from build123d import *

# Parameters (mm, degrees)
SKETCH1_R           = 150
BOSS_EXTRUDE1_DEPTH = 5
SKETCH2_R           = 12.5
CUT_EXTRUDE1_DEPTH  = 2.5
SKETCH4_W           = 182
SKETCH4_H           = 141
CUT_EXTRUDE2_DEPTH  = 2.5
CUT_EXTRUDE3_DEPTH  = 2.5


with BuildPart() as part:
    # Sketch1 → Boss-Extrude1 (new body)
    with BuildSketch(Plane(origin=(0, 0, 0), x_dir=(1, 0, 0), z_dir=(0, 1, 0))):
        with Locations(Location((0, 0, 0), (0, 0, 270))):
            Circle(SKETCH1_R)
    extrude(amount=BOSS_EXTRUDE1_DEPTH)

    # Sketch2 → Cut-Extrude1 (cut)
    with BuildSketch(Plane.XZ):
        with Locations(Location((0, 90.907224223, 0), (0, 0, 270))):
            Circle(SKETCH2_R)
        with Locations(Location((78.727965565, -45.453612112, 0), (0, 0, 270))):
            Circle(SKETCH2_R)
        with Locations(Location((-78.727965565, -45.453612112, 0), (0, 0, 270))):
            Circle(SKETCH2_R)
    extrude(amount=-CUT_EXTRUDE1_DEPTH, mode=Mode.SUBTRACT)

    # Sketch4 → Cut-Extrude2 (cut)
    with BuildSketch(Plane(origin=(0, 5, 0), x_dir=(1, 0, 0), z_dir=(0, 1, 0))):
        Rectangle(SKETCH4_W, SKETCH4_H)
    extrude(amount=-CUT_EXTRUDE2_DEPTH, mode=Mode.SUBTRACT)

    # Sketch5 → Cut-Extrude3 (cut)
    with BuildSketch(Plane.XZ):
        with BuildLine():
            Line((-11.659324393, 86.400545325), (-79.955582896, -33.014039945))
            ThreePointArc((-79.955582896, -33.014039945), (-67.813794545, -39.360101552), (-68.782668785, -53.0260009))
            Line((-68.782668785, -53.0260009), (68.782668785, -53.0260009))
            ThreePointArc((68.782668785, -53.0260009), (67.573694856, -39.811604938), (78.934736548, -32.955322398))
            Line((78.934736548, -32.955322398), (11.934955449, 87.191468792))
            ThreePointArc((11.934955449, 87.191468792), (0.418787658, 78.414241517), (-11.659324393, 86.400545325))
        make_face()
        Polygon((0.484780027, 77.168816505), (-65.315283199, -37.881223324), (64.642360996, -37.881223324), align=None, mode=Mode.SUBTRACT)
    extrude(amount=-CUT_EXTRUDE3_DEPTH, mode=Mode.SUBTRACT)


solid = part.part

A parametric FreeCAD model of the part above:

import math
import FreeCAD as App
import Part
import Sketcher
from FreeCAD import Vector

doc = App.newDocument("Part")
params = doc.addObject("Spreadsheet::Sheet", "Params")
for row, (alias, value) in enumerate([
    ("sketch1_diameter", "300 mm"),
    ("pad1_length", "5 mm"),
    ("sketch2_diameter", "25 mm"),
    ("pocket1_length", "2.5 mm"),
    ("sketch3_width", "182 mm"),
    ("sketch3_height", "141 mm"),
    ("pocket2_length", "2.5 mm"),
    ("sketch4_radius", "12.5 mm"),
    ("pocket3_length", "2.5 mm"),
], start=1):
    params.set(f"A{row}", alias)
    params.set(f"B{row}", "=" + value)
    params.setAlias(f"B{row}", alias)

body = doc.addObject("PartDesign::Body", "Body")

# Sketch on XZ plane
sketch1 = body.newObject("Sketcher::SketchObject", "Sketch")
sketch1.AttachmentSupport = (doc.getObject("XZ_Plane"), [""])
sketch1.MapMode = "FlatFace"
sketch1.addGeometry(Part.Circle(Vector(0, 0, 0), Vector(0, 0, 1), 150), False)
sketch1.addConstraint(Sketcher.Constraint("Coincident", 0, 3, -1, 1))
sketch1.addConstraint(Sketcher.Constraint("Diameter", 0, 300.0))
sketch1.setExpression("Constraints[1]", "Params.sketch1_diameter")
pad1 = body.newObject("PartDesign::Pad", "Pad")
pad1.Profile = sketch1
pad1.setExpression("Length", "Params.pad1_length")
pad1.Reversed = True

# Sketch on XZ plane
sketch2 = body.newObject("Sketcher::SketchObject", "Sketch001")
sketch2.AttachmentSupport = (doc.getObject("XZ_Plane"), [""])
sketch2.MapMode = "FlatFace"
sketch2.addGeometry(Part.Circle(Vector(0, 91, 0), Vector(0, 0, 1), 12), False)
sketch2.addGeometry(Part.Circle(Vector(79, -45, 0), Vector(0, 0, 1), 12), False)
sketch2.addGeometry(Part.Circle(Vector(-79, -45, 0), Vector(0, 0, 1), 12), False)
sketch2.addConstraint(Sketcher.Constraint("Equal", 0, 1))
sketch2.addConstraint(Sketcher.Constraint("Equal", 1, 2))
sketch2.addConstraint(Sketcher.Constraint("Symmetric", 1, 3, 2, 3, -2))
sketch2.addConstraint(Sketcher.Constraint("PointOnObject", 0, 3, -2))
sketch2.addConstraint(Sketcher.Constraint("Diameter", 0, 25.0))
sketch2.addConstraint(Sketcher.Constraint("DistanceX", 2, 3, 1, 3, 157.455931))
sketch2.addConstraint(Sketcher.Constraint("DistanceY", -1, 1, 0, 3, 90.907224))
sketch2.addConstraint(Sketcher.Constraint("DistanceY", 1, 3, -1, 1, 45.453612))
sketch2.setExpression("Constraints[4]", "Params.sketch2_diameter")
pocket1 = body.newObject("PartDesign::Pocket", "Pocket")
pocket1.Profile = sketch2
pocket1.setExpression("Length", "Params.pocket1_length")

# Sketch on XZ plane
sketch3 = body.newObject("Sketcher::SketchObject", "Sketch002")
sketch3.AttachmentSupport = (doc.getObject("XZ_Plane"), [""])
sketch3.MapMode = "FlatFace"
sketch3.AttachmentOffset = App.Placement(Vector(0, 0, -5), App.Rotation())
sketch3.addGeometry(Part.LineSegment(Vector(-91, -70, 0), Vector(-91, 70, 0)), False)
sketch3.addGeometry(Part.LineSegment(Vector(-91, 70, 0), Vector(91, 70, 0)), False)
sketch3.addGeometry(Part.LineSegment(Vector(91, 70, 0), Vector(91, -70, 0)), False)
sketch3.addGeometry(Part.LineSegment(Vector(91, -70, 0), Vector(-91, -70, 0)), False)
sketch3.addConstraint(Sketcher.Constraint("Coincident", 0, 2, 1, 1))
sketch3.addConstraint(Sketcher.Constraint("Coincident", 1, 2, 2, 1))
sketch3.addConstraint(Sketcher.Constraint("Coincident", 2, 2, 3, 1))
sketch3.addConstraint(Sketcher.Constraint("Coincident", 3, 2, 0, 1))
sketch3.addConstraint(Sketcher.Constraint("Vertical", 0))
sketch3.addConstraint(Sketcher.Constraint("Horizontal", 1))
sketch3.addConstraint(Sketcher.Constraint("Vertical", 2))
sketch3.addConstraint(Sketcher.Constraint("Horizontal", 3))
sketch3.addConstraint(Sketcher.Constraint("Symmetric", 0, 2, 2, 2, -1, 1))
sketch3.addConstraint(Sketcher.Constraint("DistanceX", 1, 1, 1, 2, 182.0))
sketch3.addConstraint(Sketcher.Constraint("DistanceY", 0, 1, 0, 2, 141.0))
sketch3.setExpression("Constraints[9]", "Params.sketch3_width")
sketch3.setExpression("Constraints[10]", "Params.sketch3_height")
pocket2 = body.newObject("PartDesign::Pocket", "Pocket001")
pocket2.Profile = sketch3
pocket2.setExpression("Length", "Params.pocket2_length")
pocket2.Reversed = True

# Sketch on XZ plane
sketch4 = body.newObject("Sketcher::SketchObject", "Sketch003")
sketch4.AttachmentSupport = (doc.getObject("XZ_Plane"), [""])
sketch4.MapMode = "FlatFace"
sketch4.addGeometry(Part.LineSegment(Vector(-12, 86, 0), Vector(-80, -33, 0)), False)
sketch4.addGeometry(Part.ArcOfCircle(Part.Circle(Vector(-79, -45, 0), Vector(0, 0, 1), 12), math.radians(-37), math.radians(96)), False)
sketch4.addGeometry(Part.LineSegment(Vector(-69, -53, 0), Vector(69, -53, 0)), False)
sketch4.addGeometry(Part.ArcOfCircle(Part.Circle(Vector(79, -45, 0), Vector(0, 0, 1), 12), math.radians(89), math.radians(217)), False)
sketch4.addGeometry(Part.LineSegment(Vector(79, -33, 0), Vector(12, 87, 0)), False)
sketch4.addGeometry(Part.ArcOfCircle(Part.Circle(Vector(0, 91, 0), Vector(0, 0, 1), 12), math.radians(-159), math.radians(-17)), False)
sketch4.addGeometry(Part.LineSegment(Vector(-65, -38, 0), Vector(0, 77, 0)), False)
sketch4.addGeometry(Part.LineSegment(Vector(0, 77, 0), Vector(65, -38, 0)), False)
sketch4.addGeometry(Part.LineSegment(Vector(65, -38, 0), Vector(-65, -38, 0)), False)
sketch4.addConstraint(Sketcher.Constraint("Coincident", 0, 2, 1, 2))
sketch4.addConstraint(Sketcher.Constraint("Coincident", 1, 1, 2, 1))
sketch4.addConstraint(Sketcher.Constraint("Coincident", 2, 2, 3, 2))
sketch4.addConstraint(Sketcher.Constraint("Coincident", 3, 1, 4, 1))
sketch4.addConstraint(Sketcher.Constraint("Coincident", 4, 2, 5, 2))
sketch4.addConstraint(Sketcher.Constraint("Coincident", 5, 1, 0, 1))
sketch4.addConstraint(Sketcher.Constraint("Coincident", 6, 2, 7, 1))
sketch4.addConstraint(Sketcher.Constraint("Coincident", 7, 2, 8, 1))
sketch4.addConstraint(Sketcher.Constraint("Coincident", 8, 2, 6, 1))
sketch4.addConstraint(Sketcher.Constraint("Horizontal", 2))
sketch4.addConstraint(Sketcher.Constraint("Horizontal", 8))
sketch4.addConstraint(Sketcher.Constraint("Equal", 1, 3))
sketch4.addConstraint(Sketcher.Constraint("Equal", 3, 5))
sketch4.addConstraint(Sketcher.Constraint("Symmetric", 1, 3, 3, 3, -2))
sketch4.addConstraint(Sketcher.Constraint("PointOnObject", 5, 3, -2))
sketch4.addConstraint(Sketcher.Constraint("Parallel", 0, 6))
sketch4.addConstraint(Sketcher.Constraint("Parallel", 4, 7))
sketch4.addConstraint(Sketcher.Constraint("Equal", 0, 4))
sketch4.addConstraint(Sketcher.Constraint("Radius", 1, 12.5))
sketch4.addConstraint(Sketcher.Constraint("DistanceY", 1, 1, -1, 1, 53.026001))
sketch4.addConstraint(Sketcher.Constraint("DistanceY", 7, 2, 3, 1, 4.925901))
sketch4.addConstraint(Sketcher.Constraint("DistanceX", 0, 2, 8, 2, 14.6403))
sketch4.addConstraint(Sketcher.Constraint("Distance", 6, 132.537391))
sketch4.addConstraint(Sketcher.Constraint("DistanceX", 2, 1, 2, 2, 137.565338))
sketch4.addConstraint(Sketcher.Constraint("DistanceX", 8, 2, 8, 1, 129.957644))
sketch4.addConstraint(Sketcher.Constraint("DistanceY", 0, 2, -1, 1, 33.01404))
sketch4.addConstraint(Sketcher.Constraint("DistanceY", -1, 1, 4, 2, 87.191469))
sketch4.addConstraint(Sketcher.Constraint("DistanceX", -1, 1, 6, 2, 0.48478))
sketch4.addConstraint(Sketcher.Constraint("DistanceX", -1, 1, 7, 2, 64.642361))
sketch4.setExpression("Constraints[18]", "Params.sketch4_radius")
pocket3 = body.newObject("PartDesign::Pocket", "Pocket002")
pocket3.Profile = sketch4
pocket3.setExpression("Length", "Params.pocket3_length")

doc.recompute()
